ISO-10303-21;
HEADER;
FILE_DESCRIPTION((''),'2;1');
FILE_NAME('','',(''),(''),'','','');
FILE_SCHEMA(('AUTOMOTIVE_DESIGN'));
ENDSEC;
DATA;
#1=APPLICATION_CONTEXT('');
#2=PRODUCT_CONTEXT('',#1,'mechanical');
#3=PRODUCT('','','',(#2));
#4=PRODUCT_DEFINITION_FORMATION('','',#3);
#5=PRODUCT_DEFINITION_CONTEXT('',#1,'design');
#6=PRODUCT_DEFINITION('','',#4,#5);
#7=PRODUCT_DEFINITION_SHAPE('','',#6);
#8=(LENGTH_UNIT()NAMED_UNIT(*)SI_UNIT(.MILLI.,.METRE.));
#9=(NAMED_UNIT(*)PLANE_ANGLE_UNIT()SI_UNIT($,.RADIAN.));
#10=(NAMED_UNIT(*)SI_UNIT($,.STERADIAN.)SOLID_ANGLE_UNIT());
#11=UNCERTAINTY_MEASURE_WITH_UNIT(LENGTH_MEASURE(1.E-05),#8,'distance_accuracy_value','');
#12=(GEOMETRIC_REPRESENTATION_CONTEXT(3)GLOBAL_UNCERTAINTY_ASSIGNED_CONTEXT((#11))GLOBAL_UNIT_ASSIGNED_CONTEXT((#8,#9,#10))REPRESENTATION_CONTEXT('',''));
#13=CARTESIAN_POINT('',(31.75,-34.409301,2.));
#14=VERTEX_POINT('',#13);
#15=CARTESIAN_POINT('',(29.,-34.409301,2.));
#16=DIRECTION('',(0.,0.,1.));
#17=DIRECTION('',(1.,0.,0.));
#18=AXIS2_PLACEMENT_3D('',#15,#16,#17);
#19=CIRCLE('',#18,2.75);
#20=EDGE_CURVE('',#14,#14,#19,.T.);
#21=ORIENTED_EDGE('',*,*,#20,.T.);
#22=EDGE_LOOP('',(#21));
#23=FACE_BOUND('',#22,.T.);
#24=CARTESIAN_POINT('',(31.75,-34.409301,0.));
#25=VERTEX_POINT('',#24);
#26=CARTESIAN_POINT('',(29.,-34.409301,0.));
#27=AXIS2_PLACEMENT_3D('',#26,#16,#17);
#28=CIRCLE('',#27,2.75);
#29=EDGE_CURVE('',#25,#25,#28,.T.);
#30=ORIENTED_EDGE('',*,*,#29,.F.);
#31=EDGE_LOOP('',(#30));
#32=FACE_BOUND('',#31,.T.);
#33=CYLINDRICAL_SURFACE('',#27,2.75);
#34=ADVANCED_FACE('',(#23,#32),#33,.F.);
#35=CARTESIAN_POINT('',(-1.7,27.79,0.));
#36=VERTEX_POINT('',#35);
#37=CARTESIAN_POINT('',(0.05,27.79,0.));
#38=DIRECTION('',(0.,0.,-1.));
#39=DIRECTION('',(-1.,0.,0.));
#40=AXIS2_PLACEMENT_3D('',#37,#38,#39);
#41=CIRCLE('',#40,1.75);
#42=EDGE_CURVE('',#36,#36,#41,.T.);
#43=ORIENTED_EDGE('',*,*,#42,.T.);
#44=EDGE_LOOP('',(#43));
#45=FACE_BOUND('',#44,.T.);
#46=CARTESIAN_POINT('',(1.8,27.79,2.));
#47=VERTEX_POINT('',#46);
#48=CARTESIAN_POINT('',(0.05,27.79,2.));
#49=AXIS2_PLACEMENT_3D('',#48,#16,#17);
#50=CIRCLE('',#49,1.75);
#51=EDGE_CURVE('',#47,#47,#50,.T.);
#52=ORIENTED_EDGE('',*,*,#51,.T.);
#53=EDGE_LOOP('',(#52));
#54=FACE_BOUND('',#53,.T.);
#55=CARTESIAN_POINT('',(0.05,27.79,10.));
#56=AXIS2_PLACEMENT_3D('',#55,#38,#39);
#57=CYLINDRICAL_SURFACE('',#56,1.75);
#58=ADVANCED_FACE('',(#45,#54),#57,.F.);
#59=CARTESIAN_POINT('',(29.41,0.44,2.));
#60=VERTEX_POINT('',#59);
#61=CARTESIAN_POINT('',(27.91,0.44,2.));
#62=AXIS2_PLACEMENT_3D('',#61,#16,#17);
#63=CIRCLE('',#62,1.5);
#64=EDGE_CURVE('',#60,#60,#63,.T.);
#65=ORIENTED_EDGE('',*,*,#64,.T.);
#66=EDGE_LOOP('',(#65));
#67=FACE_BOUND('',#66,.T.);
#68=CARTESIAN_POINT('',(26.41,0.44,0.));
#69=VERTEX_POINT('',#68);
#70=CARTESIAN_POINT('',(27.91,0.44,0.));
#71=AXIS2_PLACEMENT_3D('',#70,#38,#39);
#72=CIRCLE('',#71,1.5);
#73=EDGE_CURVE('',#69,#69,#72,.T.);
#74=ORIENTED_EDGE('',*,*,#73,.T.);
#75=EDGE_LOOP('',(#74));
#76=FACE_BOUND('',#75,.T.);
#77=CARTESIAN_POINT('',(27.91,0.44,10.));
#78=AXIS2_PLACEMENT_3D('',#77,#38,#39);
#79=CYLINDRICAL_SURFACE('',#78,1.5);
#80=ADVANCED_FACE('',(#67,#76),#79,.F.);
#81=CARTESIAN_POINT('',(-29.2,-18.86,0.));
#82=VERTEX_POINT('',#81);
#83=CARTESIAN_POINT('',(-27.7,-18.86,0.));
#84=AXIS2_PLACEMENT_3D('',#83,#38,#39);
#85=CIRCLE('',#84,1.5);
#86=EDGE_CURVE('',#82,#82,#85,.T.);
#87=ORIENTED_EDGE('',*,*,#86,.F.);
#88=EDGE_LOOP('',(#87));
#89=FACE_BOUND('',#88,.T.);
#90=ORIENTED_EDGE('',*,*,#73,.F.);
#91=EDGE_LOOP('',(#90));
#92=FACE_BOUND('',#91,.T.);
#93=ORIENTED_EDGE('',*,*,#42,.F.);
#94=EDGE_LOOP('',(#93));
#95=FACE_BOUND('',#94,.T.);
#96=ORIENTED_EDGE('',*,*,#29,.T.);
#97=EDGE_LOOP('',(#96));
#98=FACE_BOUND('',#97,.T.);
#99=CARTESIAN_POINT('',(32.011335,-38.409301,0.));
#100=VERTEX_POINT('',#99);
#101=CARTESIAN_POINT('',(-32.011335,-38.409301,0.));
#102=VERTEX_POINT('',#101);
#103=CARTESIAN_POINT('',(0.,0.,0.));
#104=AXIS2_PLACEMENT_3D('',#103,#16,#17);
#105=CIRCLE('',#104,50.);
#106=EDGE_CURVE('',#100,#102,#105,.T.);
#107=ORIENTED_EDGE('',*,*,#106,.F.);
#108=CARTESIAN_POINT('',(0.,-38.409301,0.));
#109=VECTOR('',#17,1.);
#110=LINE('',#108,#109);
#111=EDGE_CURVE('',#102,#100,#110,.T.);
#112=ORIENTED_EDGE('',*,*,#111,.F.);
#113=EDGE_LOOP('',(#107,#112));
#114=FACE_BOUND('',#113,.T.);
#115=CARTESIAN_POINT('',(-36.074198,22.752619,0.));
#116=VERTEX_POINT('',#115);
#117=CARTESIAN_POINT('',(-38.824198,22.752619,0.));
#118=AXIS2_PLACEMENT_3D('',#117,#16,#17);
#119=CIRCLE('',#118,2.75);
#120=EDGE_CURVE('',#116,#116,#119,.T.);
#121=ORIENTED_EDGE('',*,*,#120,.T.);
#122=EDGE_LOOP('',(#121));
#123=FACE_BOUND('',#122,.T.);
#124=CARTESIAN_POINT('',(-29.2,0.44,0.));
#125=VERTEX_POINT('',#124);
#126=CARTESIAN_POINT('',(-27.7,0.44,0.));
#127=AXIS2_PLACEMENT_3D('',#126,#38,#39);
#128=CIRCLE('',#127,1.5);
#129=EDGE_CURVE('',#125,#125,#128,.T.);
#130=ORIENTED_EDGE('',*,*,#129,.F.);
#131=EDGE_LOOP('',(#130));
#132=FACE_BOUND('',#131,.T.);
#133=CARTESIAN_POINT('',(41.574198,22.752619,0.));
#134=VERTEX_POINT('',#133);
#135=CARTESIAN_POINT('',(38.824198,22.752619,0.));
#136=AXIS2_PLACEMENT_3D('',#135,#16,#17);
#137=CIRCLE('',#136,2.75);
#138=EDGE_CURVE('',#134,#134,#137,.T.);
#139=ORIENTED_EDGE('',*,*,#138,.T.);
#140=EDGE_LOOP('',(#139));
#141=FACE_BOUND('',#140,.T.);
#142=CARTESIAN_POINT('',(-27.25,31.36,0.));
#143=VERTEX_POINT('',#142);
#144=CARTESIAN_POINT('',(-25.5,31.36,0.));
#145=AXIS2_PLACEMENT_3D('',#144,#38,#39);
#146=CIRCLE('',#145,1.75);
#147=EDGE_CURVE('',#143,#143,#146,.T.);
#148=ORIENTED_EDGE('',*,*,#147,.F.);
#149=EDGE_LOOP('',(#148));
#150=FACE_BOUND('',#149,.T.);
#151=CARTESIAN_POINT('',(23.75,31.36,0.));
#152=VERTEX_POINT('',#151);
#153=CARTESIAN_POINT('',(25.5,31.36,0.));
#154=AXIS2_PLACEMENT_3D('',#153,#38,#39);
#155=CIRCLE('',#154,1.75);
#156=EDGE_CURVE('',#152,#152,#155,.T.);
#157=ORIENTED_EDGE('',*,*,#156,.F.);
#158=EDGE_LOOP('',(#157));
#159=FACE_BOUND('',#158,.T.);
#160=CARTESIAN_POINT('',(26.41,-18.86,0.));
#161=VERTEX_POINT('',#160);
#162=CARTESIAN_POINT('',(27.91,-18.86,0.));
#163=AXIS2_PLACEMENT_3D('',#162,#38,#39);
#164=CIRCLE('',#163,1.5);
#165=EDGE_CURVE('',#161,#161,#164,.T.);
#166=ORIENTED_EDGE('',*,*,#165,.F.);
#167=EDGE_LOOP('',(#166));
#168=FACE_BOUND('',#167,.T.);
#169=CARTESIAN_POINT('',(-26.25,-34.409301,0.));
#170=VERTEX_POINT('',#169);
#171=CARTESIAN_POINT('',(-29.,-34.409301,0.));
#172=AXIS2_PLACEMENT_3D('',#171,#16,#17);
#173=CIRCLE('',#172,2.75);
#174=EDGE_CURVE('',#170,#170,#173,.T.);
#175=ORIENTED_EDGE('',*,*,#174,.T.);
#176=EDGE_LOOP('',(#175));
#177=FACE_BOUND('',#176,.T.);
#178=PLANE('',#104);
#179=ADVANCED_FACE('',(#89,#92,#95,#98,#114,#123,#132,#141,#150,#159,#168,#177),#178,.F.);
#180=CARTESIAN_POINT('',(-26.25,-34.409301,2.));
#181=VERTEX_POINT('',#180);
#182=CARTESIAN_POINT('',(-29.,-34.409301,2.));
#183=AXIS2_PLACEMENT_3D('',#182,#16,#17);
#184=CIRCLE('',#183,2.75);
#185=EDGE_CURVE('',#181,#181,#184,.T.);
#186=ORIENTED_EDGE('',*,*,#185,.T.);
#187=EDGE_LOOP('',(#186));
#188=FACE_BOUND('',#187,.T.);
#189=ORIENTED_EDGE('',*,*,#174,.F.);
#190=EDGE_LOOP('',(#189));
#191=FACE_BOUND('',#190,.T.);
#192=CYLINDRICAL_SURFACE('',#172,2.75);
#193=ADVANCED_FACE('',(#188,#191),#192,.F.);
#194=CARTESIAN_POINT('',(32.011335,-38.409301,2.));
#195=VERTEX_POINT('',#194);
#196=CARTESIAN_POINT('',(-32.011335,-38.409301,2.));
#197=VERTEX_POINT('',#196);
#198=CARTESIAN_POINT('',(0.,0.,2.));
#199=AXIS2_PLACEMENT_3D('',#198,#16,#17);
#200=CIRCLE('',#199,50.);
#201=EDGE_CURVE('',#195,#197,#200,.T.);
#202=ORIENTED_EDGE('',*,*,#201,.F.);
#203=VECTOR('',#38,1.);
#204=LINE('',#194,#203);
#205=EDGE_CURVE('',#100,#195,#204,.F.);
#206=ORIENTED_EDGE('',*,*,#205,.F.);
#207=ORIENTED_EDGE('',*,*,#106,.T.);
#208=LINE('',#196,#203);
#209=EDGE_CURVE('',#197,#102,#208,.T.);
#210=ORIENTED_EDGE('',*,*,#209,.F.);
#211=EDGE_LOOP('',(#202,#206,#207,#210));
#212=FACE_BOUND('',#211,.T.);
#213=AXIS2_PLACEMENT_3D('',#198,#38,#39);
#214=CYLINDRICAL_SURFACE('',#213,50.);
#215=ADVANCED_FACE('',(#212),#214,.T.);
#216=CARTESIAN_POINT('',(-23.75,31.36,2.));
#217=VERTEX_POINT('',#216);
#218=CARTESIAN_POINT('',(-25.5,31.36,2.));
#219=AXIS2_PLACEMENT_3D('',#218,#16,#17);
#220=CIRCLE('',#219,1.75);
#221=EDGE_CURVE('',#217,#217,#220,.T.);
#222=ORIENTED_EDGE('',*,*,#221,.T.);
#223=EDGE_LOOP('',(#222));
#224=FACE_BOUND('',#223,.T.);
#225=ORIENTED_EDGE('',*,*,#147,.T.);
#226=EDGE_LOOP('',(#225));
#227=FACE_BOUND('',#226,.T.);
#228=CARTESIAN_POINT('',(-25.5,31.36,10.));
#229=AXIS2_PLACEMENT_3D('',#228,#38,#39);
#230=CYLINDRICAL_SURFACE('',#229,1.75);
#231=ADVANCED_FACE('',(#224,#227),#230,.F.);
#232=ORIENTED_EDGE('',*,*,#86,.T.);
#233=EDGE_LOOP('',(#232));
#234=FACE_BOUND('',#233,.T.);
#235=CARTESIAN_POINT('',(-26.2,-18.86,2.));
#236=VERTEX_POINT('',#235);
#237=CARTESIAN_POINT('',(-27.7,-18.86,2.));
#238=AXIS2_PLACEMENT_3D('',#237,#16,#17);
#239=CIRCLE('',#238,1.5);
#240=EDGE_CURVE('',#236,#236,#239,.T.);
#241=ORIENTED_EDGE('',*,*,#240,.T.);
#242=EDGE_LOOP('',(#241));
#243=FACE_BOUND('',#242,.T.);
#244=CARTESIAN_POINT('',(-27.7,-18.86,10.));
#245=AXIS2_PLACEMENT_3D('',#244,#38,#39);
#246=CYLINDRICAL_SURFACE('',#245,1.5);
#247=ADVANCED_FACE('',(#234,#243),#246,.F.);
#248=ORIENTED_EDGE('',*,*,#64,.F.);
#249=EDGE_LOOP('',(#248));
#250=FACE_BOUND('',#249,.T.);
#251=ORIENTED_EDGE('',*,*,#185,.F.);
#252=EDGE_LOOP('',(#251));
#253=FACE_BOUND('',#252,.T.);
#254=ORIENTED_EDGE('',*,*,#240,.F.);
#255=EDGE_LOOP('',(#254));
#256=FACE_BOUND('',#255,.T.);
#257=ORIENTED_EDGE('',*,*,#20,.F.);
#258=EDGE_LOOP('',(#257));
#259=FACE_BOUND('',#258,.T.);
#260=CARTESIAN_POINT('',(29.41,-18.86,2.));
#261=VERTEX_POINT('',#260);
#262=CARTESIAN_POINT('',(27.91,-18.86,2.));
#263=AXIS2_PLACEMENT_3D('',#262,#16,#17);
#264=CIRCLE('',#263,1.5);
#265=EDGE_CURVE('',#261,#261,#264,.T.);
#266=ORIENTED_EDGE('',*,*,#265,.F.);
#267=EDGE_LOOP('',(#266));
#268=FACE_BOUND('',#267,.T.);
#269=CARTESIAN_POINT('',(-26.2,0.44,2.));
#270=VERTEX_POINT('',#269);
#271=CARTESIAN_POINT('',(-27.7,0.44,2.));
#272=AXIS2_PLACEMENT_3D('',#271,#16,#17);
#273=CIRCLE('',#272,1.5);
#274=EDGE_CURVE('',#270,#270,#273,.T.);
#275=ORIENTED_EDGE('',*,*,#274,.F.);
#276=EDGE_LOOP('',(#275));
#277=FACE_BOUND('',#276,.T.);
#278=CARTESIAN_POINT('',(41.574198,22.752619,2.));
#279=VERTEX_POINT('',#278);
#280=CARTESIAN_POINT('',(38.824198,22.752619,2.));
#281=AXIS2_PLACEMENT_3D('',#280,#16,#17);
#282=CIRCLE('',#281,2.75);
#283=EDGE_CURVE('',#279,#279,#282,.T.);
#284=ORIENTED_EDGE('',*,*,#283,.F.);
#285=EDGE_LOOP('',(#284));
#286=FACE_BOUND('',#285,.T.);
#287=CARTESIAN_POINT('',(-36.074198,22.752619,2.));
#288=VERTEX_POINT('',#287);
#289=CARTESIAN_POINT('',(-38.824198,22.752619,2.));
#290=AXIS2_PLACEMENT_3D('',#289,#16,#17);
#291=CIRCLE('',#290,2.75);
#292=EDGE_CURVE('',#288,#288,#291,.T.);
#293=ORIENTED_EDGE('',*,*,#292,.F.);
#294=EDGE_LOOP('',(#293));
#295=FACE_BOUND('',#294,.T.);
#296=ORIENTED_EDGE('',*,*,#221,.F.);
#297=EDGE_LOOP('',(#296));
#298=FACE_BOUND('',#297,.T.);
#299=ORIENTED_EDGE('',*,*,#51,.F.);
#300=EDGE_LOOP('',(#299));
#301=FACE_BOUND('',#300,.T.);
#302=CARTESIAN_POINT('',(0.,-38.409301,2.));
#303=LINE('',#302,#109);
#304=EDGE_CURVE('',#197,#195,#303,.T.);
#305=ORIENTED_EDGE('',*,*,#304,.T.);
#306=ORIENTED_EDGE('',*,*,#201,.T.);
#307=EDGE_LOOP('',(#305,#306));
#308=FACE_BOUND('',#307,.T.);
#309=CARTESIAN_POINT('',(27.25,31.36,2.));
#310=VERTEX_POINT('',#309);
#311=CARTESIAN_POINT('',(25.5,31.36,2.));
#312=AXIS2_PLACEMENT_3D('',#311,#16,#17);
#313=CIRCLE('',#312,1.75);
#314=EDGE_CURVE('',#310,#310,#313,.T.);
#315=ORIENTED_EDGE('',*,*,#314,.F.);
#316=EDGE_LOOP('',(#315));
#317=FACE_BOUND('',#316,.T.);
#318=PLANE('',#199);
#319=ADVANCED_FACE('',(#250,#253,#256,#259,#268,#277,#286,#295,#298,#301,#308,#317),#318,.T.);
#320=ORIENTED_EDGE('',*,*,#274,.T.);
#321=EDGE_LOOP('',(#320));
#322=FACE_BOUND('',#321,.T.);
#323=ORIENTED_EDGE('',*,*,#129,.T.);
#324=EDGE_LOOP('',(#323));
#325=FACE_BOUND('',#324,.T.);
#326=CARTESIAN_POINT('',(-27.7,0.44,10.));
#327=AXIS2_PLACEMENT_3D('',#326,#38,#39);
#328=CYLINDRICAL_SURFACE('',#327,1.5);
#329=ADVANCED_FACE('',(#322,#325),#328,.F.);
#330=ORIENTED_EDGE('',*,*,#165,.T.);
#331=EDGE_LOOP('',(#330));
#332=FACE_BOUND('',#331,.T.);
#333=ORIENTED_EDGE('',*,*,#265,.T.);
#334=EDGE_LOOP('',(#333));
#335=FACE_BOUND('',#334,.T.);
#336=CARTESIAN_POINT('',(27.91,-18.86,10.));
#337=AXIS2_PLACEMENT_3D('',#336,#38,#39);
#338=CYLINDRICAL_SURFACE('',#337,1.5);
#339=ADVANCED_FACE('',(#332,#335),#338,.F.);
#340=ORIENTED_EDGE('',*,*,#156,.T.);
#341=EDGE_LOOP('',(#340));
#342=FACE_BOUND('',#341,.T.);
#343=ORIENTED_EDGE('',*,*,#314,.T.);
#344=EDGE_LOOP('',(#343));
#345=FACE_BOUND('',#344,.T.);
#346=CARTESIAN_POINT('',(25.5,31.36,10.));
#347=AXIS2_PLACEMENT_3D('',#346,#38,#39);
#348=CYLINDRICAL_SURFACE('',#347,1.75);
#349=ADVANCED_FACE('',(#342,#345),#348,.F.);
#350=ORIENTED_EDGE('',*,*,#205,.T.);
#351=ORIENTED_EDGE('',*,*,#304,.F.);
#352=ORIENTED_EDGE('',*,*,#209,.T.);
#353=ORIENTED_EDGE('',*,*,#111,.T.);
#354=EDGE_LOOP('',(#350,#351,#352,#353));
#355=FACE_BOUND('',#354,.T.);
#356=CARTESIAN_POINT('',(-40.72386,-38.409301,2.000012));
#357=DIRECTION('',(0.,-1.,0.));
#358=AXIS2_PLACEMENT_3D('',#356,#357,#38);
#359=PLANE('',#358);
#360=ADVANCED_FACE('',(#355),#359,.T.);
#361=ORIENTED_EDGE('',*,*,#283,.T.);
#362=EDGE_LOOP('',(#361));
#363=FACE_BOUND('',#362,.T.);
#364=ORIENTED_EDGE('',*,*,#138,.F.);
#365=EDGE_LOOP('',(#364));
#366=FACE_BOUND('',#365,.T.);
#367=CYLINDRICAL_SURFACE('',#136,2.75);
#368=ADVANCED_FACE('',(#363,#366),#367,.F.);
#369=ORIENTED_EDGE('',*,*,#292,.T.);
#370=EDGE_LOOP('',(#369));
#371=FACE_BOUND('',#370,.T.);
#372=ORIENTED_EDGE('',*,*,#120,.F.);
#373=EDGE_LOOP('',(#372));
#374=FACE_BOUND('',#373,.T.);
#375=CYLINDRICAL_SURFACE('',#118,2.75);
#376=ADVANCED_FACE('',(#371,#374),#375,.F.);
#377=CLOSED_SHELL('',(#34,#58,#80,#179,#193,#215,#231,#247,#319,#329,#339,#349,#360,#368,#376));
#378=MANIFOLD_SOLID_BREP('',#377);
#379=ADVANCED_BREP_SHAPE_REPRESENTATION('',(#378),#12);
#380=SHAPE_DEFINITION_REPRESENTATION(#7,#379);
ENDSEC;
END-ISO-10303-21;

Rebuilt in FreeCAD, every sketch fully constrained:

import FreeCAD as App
import Part
import Sketcher
from FreeCAD import Vector
Q = App.Units.Quantity


def add_polygon(sketch, points):
    """Adds a closed chain of lines whose ends are joined by coincident constraints."""
    first, n = sketch.GeometryCount, len(points)
    for a, b in zip(points, points[1:] + points[:1]):
        sketch.addGeometry(Part.LineSegment(App.Vector(*a, 0), App.Vector(*b, 0)), False)
    for i in range(n):
        sketch.addConstraint(Sketcher.Constraint("Coincident", first + i, 2, first + (i + 1) % n, 1))

doc = App.newDocument("Part")
params = doc.addObject("Spreadsheet::Sheet", "Params")
for row, (alias, value) in enumerate([
    ("sketch1_diameter", "100 mm"),
    ("pad1_length", "2 mm"),
    ("sketch2_diameter", "5.5 mm"),
    ("pocket1_length", "2 mm"),
    ("sketch4_diameter", "3 mm"),
    ("sketch4_diameter2", "3.5 mm"),
    ("pocket3_length", "10 mm"),
], start=1):
    params.set(f"A{row}", alias)
    params.set(f"B{row}", "=" + value)
    params.setAlias(f"B{row}", alias)

body = doc.addObject("PartDesign::Body", "Body")

sketch1 = body.newObject("Sketcher::SketchObject", "Sketch")
sketch1.AttachmentSupport = (doc.getObject("XY_Plane"), [""])
sketch1.MapMode = "FlatFace"
sketch1.addGeometry(Part.Circle(Vector(0, 0, 0), Vector(0, 0, 1), 50), False)
sketch1.addConstraint(Sketcher.Constraint("Coincident", 0, 3, -1, 1))
sketch1.addConstraint(Sketcher.Constraint("Diameter", 0, Q("100 mm")))
sketch1.setExpression("Constraints[1]", "Params.sketch1_diameter")
pad1 = body.newObject("PartDesign::Pad", "Pad")
pad1.Profile = sketch1
pad1.setExpression("Length", "Params.pad1_length")

sketch2 = body.newObject("Sketcher::SketchObject", "Sketch001")
sketch2.AttachmentSupport = (doc.getObject("XY_Plane"), [""])
sketch2.MapMode = "FlatFace"
sketch2.AttachmentOffset = App.Placement(Vector(0, 0, 2), App.Rotation())
sketch2.addGeometry(Part.Circle(Vector(-29, -34.4, 0), Vector(0, 0, 1), 2.8), False)
sketch2.addGeometry(Part.Circle(Vector(29, -34.4, 0), Vector(0, 0, 1), 2.8), False)
sketch2.addGeometry(Part.Circle(Vector(-38.8, 22.8, 0), Vector(0, 0, 1), 2.8), False)
sketch2.addGeometry(Part.Circle(Vector(38.8, 22.8, 0), Vector(0, 0, 1), 2.8), False)
sketch2.addConstraint(Sketcher.Constraint("Equal", 0, 1))
sketch2.addConstraint(Sketcher.Constraint("Equal", 1, 2))
sketch2.addConstraint(Sketcher.Constraint("Equal", 2, 3))
sketch2.addConstraint(Sketcher.Constraint("Symmetric", 0, 3, 1, 3, -2))
sketch2.addConstraint(Sketcher.Constraint("Symmetric", 2, 3, 3, 3, -2))
sketch2.addConstraint(Sketcher.Constraint("Diameter", 0, Q("5.5 mm")))
sketch2.addConstraint(Sketcher.Constraint("DistanceX", 0, 3, -1, 1, Q("29 mm")))
sketch2.addConstraint(Sketcher.Constraint("DistanceY", 0, 3, -1, 1, Q("34.409301 mm")))
sketch2.addConstraint(Sketcher.Constraint("DistanceY", -1, 1, 2, 3, Q("22.752619 mm")))
sketch2.addConstraint(Sketcher.Constraint("DistanceX", 2, 3, -1, 1, Q("38.824198 mm")))
sketch2.setExpression("Constraints[5]", "Params.sketch2_diameter")
pocket1 = body.newObject("PartDesign::Pocket", "Pocket")
pocket1.Profile = sketch2
pocket1.setExpression("Length", "Params.pocket1_length")

sketch3 = body.newObject("Sketcher::SketchObject", "Sketch002")
sketch3.AttachmentSupport = (doc.getObject("XY_Plane"), [""])
sketch3.MapMode = "FlatFace"
sketch3.AttachmentOffset = App.Placement(Vector(0, 0, 2), App.Rotation())
add_polygon(sketch3, [(45, -38), (-41, -38), (2, -68)])
sketch3.addConstraint(Sketcher.Constraint("Horizontal", 0))
sketch3.addConstraint(Sketcher.Constraint("Equal", 1, 2))
sketch3.addConstraint(Sketcher.Constraint("DistanceX", 0, 2, 0, 1, Q("85.294599 mm")))
sketch3.addConstraint(Sketcher.Constraint("DistanceY", 0, 2, -1, 1, Q("38.409301 mm")))
sketch3.addConstraint(Sketcher.Constraint("DistanceX", 0, 2, -1, 1, Q("40.72386 mm")))
sketch3.addConstraint(Sketcher.Constraint("Distance", 1, Q("51.908888 mm")))
pocket2 = body.newObject("PartDesign::Pocket", "Pocket001")
pocket2.Profile = sketch3
pocket2.Type = "ThroughAll"
pocket2.Midplane = True

sketch4 = body.newObject("Sketcher::SketchObject", "Sketch003")
sketch4.AttachmentSupport = (doc.getObject("XY_Plane"), [""])
sketch4.MapMode = "FlatFace"
sketch4.addGeometry(Part.Circle(Vector(27.9, -18.9, 0), Vector(0, 0, 1), 1.5), False)
sketch4.addGeometry(Part.Circle(Vector(-27.7, -18.9, 0), Vector(0, 0, 1), 1.5), False)
sketch4.addGeometry(Part.Circle(Vector(-27.7, 0.4, 0), Vector(0, 0, 1), 1.5), False)
sketch4.addGeometry(Part.Circle(Vector(27.9, 0.4, 0), Vector(0, 0, 1), 1.5), False)
sketch4.addGeometry(Part.Circle(Vector(-25.5, 31.4, 0), Vector(0, 0, 1), 1.8), False)
sketch4.addGeometry(Part.Circle(Vector(0.1, 27.8, 0), Vector(0, 0, 1), 1.8), False)
sketch4.addGeometry(Part.Circle(Vector(25.5, 31.4, 0), Vector(0, 0, 1), 1.8), False)
sketch4.addConstraint(Sketcher.Constraint("Equal", 0, 1))
sketch4.addConstraint(Sketcher.Constraint("Equal", 1, 2))
sketch4.addConstraint(Sketcher.Constraint("Equal", 2, 3))
sketch4.addConstraint(Sketcher.Constraint("Equal", 4, 5))
sketch4.addConstraint(Sketcher.Constraint("Equal", 5, 6))
sketch4.addConstraint(Sketcher.Constraint("Symmetric", 4, 3, 6, 3, -2))
sketch4.addConstraint(Sketcher.Constraint("Horizontal", 0, 3, 1, 3))
sketch4.addConstraint(Sketcher.Constraint("Horizontal", 2, 3, 3, 3))
sketch4.addConstraint(Sketcher.Constraint("Vertical", 1, 3, 2, 3))
sketch4.addConstraint(Sketcher.Constraint("Vertical", 0, 3, 3, 3))
sketch4.addConstraint(Sketcher.Constraint("Diameter", 0, Q("3 mm")))
sketch4.addConstraint(Sketcher.Constraint("Diameter", 4, Q("3.5 mm")))
sketch4.addConstraint(Sketcher.Constraint("DistanceX", 4, 3, 6, 3, Q("51 mm")))
sketch4.addConstraint(Sketcher.Constraint("DistanceX", 1, 3, -1, 1, Q("27.7 mm")))
sketch4.addConstraint(Sketcher.Constraint("DistanceY", 1, 3, 2, 3, Q("19.3 mm")))
sketch4.addConstraint(Sketcher.Constraint("DistanceX", -1, 1, 0, 3, Q("27.91 mm")))
sketch4.addConstraint(Sketcher.Constraint("DistanceY", 0, 3, -1, 1, Q("18.86 mm")))
sketch4.addConstraint(Sketcher.Constraint("DistanceY", -1, 1, 4, 3, Q("31.36 mm")))
sketch4.addConstraint(Sketcher.Constraint("DistanceX", -1, 1, 5, 3, Q("0.05 mm")))
sketch4.addConstraint(Sketcher.Constraint("DistanceY", -1, 1, 5, 3, Q("27.79 mm")))
sketch4.setExpression("Constraints[10]", "Params.sketch4_diameter")
sketch4.setExpression("Constraints[11]", "Params.sketch4_diameter2")
pocket3 = body.newObject("PartDesign::Pocket", "Pocket002")
pocket3.Profile = sketch4
pocket3.setExpression("Length", "Params.pocket3_length")
pocket3.Reversed = True

doc.recompute()
